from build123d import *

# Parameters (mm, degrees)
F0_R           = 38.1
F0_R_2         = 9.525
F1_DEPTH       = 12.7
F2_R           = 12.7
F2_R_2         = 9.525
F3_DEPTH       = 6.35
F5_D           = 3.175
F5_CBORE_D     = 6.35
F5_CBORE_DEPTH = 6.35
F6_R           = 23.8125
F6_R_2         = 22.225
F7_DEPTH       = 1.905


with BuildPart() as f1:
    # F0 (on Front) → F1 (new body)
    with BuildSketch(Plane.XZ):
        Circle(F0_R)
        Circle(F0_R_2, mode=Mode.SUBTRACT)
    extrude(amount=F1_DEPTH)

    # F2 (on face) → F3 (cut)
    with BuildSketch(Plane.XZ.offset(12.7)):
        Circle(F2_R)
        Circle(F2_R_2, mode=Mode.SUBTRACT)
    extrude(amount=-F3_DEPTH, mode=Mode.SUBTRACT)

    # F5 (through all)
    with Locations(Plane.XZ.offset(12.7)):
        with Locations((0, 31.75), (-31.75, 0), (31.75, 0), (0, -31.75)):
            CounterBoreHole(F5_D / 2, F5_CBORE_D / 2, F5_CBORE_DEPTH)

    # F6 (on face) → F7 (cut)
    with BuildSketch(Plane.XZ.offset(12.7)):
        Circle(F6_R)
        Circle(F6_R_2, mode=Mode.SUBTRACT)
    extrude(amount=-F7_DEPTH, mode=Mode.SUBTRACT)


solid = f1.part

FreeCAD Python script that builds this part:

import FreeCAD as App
import Part
import Sketcher
from FreeCAD import Vector
Q = App.Units.Quantity

doc = App.newDocument("Part")
body = doc.addObject("PartDesign::Body", "Body")

sketch1 = body.newObject("Sketcher::SketchObject", "Sketch")
sketch1.AttachmentSupport = (doc.getObject("XZ_Plane"), [""])
sketch1.MapMode = "FlatFace"
sketch1.addGeometry(Part.Circle(Vector(0, 0, 0), Vector(0, 0, 1), 38), False)
sketch1.addGeometry(Part.Circle(Vector(0, 0, 0), Vector(0, 0, 1), 10), False)
sketch1.addConstraint(Sketcher.Constraint("Coincident", 0, 3, -1, 1))
sketch1.addConstraint(Sketcher.Constraint("Coincident", 1, 3, -1, 1))
sketch1.addConstraint(Sketcher.Constraint("Diameter", 0, Q("3 in")))
sketch1.addConstraint(Sketcher.Constraint("Diameter", 1, Q("0.75 in")))
pad1 = body.newObject("PartDesign::Pad", "Pad")
pad1.Profile = sketch1
pad1.Length = Q("0.5 in")

sketch2 = body.newObject("Sketcher::SketchObject", "Sketch001")
sketch2.AttachmentSupport = (doc.getObject("XZ_Plane"), [""])
sketch2.MapMode = "FlatFace"
sketch2.AttachmentOffset = App.Placement(Vector(0, 0, 0.5 * 25.4), App.Rotation())
sketch2.addGeometry(Part.Circle(Vector(0, 0, 0), Vector(0, 0, 1), 13), False)
sketch2.addGeometry(Part.Circle(Vector(0, 0, 0), Vector(0, 0, 1), 10), False)
sketch2.addConstraint(Sketcher.Constraint("Coincident", 0, 3, -1, 1))
sketch2.addConstraint(Sketcher.Constraint("Coincident", 1, 3, -1, 1))
sketch2.addConstraint(Sketcher.Constraint("Diameter", 0, Q("1 in")))
sketch2.addConstraint(Sketcher.Constraint("Diameter", 1, Q("0.75 in")))
pocket1 = body.newObject("PartDesign::Pocket", "Pocket")
pocket1.Profile = sketch2
pocket1.Length = Q("0.25 in")

sketch3 = body.newObject("Sketcher::SketchObject", "Sketch002")
sketch3.AttachmentSupport = (doc.getObject("XZ_Plane"), [""])
sketch3.MapMode = "FlatFace"
sketch3.AttachmentOffset = App.Placement(Vector(0, 0, 0.5 * 25.4), App.Rotation())
sketch3.addGeometry(Part.Circle(Vector(0, 31.8, 0), Vector(0, 0, 1), 1.6), False)
sketch3.addGeometry(Part.Circle(Vector(-31.8, 0, 0), Vector(0, 0, 1), 1.6), False)
sketch3.addGeometry(Part.Circle(Vector(31.8, 0, 0), Vector(0, 0, 1), 1.6), False)
sketch3.addGeometry(Part.Circle(Vector(0, -31.8, 0), Vector(0, 0, 1), 1.6), False)
sketch3.addConstraint(Sketcher.Constraint("Equal", 0, 1))
sketch3.addConstraint(Sketcher.Constraint("Equal", 1, 2))
sketch3.addConstraint(Sketcher.Constraint("Equal", 2, 3))
sketch3.addConstraint(Sketcher.Constraint("Symmetric", 1, 3, 2, 3, -1, 1))
sketch3.addConstraint(Sketcher.Constraint("Symmetric", 0, 3, 3, 3, -1, 1))
sketch3.addConstraint(Sketcher.Constraint("PointOnObject", 0, 3, -2))
sketch3.addConstraint(Sketcher.Constraint("PointOnObject", 1, 3, -1))
sketch3.addConstraint(Sketcher.Constraint("Diameter", 0, Q("0.125 in")))
sketch3.addConstraint(Sketcher.Constraint("DistanceX", 1, 3, 2, 3, Q("2.5 in")))
sketch3.addConstraint(Sketcher.Constraint("DistanceY", 3, 3, 0, 3, Q("2.5 in")))
doc.recompute()
hole = body.newObject("PartDesign::Hole", "Hole")
hole.Profile = sketch3
hole.ThreadType = "None"
hole.Diameter = Q("0.125 in")
hole.DepthType = "ThroughAll"
hole.HoleCutType = "Counterbore"
hole.HoleCutDiameter = Q("0.25 in")
hole.HoleCutDepth = Q("0.25 in")

sketch4 = body.newObject("Sketcher::SketchObject", "Sketch003")
sketch4.AttachmentSupport = (doc.getObject("XZ_Plane"), [""])
sketch4.MapMode = "FlatFace"
sketch4.AttachmentOffset = App.Placement(Vector(0, 0, 0.5 * 25.4), App.Rotation())
sketch4.addGeometry(Part.Circle(Vector(0, 0, 0), Vector(0, 0, 1), 24), False)
sketch4.addGeometry(Part.Circle(Vector(0, 0, 0), Vector(0, 0, 1), 22), False)
sketch4.addConstraint(Sketcher.Constraint("Coincident", 0, 3, -1, 1))
sketch4.addConstraint(Sketcher.Constraint("Coincident", 1, 3, -1, 1))
sketch4.addConstraint(Sketcher.Constraint("Diameter", 1, Q("1.75 in")))
sketch4.addConstraint(Sketcher.Constraint("Diameter", 0, Q("1.875 in")))
pocket2 = body.newObject("PartDesign::Pocket", "Pocket001")
pocket2.Profile = sketch4
pocket2.Length = Q("0.075 in")

doc.recompute()
